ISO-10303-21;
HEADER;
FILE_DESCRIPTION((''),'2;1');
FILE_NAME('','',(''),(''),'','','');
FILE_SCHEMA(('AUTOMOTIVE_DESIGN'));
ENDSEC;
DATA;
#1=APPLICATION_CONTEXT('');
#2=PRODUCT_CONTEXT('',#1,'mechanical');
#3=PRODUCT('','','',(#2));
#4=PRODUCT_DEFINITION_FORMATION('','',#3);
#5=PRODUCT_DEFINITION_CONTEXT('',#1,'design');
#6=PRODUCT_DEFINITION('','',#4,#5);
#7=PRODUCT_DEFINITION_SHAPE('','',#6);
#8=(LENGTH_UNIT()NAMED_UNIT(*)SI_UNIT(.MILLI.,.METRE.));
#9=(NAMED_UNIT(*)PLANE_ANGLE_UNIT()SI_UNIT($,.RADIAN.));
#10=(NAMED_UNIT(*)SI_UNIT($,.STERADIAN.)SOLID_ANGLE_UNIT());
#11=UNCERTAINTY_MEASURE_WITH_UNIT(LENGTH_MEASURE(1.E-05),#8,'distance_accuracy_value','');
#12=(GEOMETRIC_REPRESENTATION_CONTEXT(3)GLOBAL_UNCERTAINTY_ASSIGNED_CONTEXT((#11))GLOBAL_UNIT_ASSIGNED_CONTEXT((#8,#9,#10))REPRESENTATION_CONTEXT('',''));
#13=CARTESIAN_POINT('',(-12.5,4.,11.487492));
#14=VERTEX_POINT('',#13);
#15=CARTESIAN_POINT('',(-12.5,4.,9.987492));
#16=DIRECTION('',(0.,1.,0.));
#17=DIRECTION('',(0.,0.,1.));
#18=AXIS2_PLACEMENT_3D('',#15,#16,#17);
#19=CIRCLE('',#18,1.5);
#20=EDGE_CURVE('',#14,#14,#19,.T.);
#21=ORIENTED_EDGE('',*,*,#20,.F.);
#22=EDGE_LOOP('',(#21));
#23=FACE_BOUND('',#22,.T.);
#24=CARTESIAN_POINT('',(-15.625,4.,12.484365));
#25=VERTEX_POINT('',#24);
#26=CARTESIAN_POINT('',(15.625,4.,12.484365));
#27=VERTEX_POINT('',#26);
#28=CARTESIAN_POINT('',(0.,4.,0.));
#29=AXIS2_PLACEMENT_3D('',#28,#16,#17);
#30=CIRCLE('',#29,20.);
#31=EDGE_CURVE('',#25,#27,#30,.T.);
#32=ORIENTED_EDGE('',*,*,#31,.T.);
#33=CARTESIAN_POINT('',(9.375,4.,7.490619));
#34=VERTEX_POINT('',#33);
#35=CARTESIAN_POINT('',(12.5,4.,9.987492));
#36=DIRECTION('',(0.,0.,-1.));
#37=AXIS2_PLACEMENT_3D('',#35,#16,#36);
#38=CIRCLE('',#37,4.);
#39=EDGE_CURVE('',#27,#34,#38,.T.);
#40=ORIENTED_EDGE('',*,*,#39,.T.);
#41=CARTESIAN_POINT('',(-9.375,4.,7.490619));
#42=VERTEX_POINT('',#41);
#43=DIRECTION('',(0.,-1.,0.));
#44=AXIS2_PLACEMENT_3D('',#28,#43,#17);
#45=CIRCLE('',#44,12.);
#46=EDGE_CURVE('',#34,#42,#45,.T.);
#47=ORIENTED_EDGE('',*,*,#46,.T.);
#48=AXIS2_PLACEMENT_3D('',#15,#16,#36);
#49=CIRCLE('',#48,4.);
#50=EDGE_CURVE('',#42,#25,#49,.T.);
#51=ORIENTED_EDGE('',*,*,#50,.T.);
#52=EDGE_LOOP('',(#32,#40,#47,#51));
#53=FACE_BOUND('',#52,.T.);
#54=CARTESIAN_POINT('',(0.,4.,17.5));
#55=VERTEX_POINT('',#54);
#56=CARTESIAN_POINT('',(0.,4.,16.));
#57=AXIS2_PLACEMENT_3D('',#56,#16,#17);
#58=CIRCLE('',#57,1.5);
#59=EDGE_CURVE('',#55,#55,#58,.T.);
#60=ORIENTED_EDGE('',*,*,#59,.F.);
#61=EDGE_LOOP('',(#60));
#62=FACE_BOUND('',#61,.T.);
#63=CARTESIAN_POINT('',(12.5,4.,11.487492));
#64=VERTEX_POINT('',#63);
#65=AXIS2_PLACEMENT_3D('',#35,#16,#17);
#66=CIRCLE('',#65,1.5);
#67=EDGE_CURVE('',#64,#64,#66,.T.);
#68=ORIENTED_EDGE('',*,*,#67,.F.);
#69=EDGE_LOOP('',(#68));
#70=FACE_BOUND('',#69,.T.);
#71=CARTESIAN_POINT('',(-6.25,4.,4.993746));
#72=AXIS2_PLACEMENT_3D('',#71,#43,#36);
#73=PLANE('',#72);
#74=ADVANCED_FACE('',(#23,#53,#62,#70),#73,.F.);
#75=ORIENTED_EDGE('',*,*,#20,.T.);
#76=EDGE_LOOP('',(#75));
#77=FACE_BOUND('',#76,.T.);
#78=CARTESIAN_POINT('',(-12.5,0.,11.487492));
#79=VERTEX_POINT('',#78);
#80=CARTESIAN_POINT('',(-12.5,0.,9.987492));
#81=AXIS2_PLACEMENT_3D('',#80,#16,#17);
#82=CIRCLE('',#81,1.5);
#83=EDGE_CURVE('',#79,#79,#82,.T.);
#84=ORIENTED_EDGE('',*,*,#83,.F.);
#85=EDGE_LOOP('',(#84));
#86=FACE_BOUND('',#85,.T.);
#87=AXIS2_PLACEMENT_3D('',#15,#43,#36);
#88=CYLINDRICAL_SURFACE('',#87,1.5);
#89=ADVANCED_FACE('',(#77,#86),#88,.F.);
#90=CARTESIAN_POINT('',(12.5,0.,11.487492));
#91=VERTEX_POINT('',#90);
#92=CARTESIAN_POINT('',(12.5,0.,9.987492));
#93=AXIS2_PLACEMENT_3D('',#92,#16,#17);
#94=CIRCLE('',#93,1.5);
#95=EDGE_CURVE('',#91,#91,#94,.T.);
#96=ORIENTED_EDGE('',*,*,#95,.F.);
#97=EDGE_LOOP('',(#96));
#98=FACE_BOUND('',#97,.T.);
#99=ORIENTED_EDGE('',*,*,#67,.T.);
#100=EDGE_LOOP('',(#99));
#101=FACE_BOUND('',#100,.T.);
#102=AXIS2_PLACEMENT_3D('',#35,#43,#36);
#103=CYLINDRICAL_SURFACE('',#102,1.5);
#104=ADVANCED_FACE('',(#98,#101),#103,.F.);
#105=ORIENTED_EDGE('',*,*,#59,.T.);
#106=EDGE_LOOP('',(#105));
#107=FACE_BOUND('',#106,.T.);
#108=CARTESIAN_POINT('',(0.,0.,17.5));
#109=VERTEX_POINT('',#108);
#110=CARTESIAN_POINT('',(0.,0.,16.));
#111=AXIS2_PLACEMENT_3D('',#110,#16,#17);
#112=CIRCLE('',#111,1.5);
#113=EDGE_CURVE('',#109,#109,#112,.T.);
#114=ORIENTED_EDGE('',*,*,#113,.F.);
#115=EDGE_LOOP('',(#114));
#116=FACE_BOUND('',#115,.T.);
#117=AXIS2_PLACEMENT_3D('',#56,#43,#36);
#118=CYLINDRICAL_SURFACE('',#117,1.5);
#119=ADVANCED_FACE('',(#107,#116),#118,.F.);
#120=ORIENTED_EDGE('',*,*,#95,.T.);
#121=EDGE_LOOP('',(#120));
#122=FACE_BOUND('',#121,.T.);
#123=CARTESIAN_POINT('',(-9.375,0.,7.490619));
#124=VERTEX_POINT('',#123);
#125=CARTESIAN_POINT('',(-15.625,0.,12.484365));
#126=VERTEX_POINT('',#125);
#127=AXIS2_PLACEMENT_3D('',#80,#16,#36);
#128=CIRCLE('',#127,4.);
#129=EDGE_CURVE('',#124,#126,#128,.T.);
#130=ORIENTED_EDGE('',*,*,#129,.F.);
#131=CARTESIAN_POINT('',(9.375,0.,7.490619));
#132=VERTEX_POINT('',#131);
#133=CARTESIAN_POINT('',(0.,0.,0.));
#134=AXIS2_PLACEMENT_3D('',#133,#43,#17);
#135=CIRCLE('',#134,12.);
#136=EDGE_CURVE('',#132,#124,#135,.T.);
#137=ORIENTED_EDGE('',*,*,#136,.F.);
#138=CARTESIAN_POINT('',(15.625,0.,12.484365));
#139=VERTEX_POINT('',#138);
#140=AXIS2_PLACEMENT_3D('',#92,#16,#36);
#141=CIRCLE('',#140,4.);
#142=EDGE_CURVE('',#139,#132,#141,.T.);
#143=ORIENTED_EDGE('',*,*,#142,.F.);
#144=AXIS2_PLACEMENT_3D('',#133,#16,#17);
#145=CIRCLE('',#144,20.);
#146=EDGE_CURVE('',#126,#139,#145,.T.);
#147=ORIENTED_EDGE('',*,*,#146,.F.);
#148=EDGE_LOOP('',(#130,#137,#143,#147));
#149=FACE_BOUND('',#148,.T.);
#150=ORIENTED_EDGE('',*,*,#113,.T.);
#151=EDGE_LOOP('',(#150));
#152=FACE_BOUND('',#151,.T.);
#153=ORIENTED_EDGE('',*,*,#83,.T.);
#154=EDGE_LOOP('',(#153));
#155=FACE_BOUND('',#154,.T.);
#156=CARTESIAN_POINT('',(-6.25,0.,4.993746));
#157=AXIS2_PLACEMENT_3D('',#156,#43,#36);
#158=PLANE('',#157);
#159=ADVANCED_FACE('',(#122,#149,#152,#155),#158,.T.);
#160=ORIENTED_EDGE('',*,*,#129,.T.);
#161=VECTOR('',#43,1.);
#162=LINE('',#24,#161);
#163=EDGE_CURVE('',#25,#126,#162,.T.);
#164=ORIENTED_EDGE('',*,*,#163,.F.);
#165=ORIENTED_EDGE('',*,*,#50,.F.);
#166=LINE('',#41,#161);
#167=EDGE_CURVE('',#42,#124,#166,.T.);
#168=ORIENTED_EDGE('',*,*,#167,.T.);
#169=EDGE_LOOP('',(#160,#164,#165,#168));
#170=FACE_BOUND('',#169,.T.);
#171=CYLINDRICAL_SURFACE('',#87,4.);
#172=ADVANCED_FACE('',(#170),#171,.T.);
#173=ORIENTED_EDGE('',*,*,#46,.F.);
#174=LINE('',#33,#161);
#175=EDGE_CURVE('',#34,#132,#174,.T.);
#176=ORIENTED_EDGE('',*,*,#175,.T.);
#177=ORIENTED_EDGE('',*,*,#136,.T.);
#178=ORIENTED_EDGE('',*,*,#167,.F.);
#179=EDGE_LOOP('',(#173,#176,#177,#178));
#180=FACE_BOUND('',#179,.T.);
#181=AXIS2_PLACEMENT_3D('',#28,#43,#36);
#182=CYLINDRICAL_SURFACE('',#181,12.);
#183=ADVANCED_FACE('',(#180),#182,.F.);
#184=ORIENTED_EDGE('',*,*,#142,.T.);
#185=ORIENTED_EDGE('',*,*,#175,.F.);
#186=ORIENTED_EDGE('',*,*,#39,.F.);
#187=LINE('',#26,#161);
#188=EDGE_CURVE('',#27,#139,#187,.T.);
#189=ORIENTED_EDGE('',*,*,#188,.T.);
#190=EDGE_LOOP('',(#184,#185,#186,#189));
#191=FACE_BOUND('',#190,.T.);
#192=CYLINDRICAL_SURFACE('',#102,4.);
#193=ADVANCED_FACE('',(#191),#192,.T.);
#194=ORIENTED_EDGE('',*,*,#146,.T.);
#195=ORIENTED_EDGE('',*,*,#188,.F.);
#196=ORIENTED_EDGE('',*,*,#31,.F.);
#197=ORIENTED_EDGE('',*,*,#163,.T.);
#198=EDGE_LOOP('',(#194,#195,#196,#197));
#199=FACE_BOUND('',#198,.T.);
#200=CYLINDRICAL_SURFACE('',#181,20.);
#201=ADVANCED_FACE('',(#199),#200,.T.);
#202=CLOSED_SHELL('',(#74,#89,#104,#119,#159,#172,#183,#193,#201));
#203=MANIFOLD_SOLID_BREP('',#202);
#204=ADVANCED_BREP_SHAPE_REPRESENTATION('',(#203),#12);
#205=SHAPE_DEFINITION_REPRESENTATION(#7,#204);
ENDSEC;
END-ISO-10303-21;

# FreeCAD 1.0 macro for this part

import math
import FreeCAD as App
import Part
import Sketcher

V = App.Vector

doc = App.newDocument("Part")
body = doc.addObject("PartDesign::Body", "Body")

sketch1 = body.newObject("Sketcher::SketchObject", "Sketch")
sketch1.AttachmentSupport = (doc.getObject("XZ_Plane"), [""])
sketch1.MapMode = "FlatFace"
sketch1.addGeometry([
    Part.ArcOfCircle(Part.Circle(V(0, 0, 0), V(0, 0, 1), 12), math.radians(39), math.radians(141)),
    Part.ArcOfCircle(Part.Circle(V(-12.5, 10, 0), V(0, 0, 1), 4), math.radians(141), math.radians(321)),
    Part.ArcOfCircle(Part.Circle(V(0, 0, 0), V(0, 0, 1), 20), math.radians(39), math.radians(141)),
    Part.ArcOfCircle(Part.Circle(V(12.5, 10, 0), V(0, 0, 1), 4), math.radians(-141), math.radians(39)),
    Part.Circle(V(0, 16, 0), V(0, 0, 1), 1.5),
    Part.Circle(V(12.5, 10, 0), V(0, 0, 1), 1.5),
    Part.Circle(V(-12.5, 10, 0), V(0, 0, 1), 1.5),
], False)
sketch1.addConstraint([
    Sketcher.Constraint("Tangent", 0, 2, 1, 2),
    Sketcher.Constraint("Tangent", 1, 1, 2, 2),
    Sketcher.Constraint("Tangent", 2, 1, 3, 2),
    Sketcher.Constraint("Tangent", 3, 1, 0, 1),
    Sketcher.Constraint("Coincident", 0, 3, -1, 1),
    Sketcher.Constraint("Coincident", 2, 3, -1, 1),
    Sketcher.Constraint("Coincident", 5, 3, 3, 3),
    Sketcher.Constraint("Coincident", 6, 3, 1, 3),
    Sketcher.Constraint("Equal", 4, 5),
    Sketcher.Constraint("Equal", 5, 6),
    Sketcher.Constraint("PointOnObject", 4, 3, -2),
    Sketcher.Constraint("Horizontal", 1, 3, 3, 3),
    Sketcher.Constraint("Diameter", 4, 3.0),
    Sketcher.Constraint("Radius", 0, 12.0),
    Sketcher.Constraint("Radius", 1, 4.0),
    Sketcher.Constraint("DistanceY", -1, 1, 4, 3, 16.0),
    Sketcher.Constraint("DistanceX", 1, 3, 3, 3, 25.0),
])
pad1 = body.newObject("PartDesign::Pad", "Pad")
pad1.Profile = sketch1
pad1.Length = 4
pad1.Reversed = True

doc.recompute()
